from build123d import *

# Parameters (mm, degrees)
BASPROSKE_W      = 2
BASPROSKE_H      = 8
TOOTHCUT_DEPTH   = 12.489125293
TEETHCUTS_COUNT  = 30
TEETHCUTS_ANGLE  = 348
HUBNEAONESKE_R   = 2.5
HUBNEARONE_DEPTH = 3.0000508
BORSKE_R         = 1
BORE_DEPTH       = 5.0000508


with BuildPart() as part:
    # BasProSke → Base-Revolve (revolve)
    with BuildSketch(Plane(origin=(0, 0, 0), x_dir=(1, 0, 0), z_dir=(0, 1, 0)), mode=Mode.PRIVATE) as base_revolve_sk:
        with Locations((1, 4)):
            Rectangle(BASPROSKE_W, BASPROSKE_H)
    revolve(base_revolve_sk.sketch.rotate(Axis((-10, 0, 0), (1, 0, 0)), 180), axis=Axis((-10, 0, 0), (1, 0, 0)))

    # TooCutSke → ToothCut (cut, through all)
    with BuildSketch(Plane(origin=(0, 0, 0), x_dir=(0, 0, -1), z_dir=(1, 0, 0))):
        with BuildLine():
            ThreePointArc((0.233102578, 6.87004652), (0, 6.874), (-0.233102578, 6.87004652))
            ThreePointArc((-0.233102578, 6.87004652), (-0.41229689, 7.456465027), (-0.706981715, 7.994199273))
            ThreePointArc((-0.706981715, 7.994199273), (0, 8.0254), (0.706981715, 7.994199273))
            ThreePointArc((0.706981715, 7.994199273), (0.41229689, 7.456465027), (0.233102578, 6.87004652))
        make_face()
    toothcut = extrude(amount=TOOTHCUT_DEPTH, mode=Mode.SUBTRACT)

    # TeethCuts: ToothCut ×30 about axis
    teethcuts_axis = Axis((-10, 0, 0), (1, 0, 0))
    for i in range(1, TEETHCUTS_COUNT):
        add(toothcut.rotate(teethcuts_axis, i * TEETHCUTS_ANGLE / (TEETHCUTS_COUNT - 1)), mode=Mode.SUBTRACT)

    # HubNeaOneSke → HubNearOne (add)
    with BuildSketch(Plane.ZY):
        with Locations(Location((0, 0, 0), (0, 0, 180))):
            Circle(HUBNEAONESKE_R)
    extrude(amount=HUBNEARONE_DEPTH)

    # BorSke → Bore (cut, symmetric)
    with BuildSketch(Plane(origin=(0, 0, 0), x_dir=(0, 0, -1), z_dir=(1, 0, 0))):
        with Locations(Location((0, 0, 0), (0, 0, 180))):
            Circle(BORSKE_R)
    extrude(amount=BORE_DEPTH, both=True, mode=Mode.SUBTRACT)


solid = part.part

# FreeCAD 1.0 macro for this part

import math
import FreeCAD as App
import Part
import Sketcher


def add_polygon(sketch, points):
    """Adds a closed chain of lines whose ends are joined by coincident constraints."""
    first, n = sketch.GeometryCount, len(points)
    for a, b in zip(points, points[1:] + points[:1]):
        sketch.addGeometry(Part.LineSegment(App.Vector(*a, 0), App.Vector(*b, 0)), False)
    for i in range(n):
        sketch.addConstraint(Sketcher.Constraint("Coincident", first + i, 2, first + (i + 1) % n, 1))

doc = App.newDocument("Part")
params = doc.addObject("Spreadsheet::Sheet", "Params")
for row, (alias, value) in enumerate([
    ("sketch1_width", "2 mm"),
    ("sketch1_height", "8 mm"),
    ("revolution_angle", "360 deg"),
    ("sketch2_radius", "3 mm"),
    ("sketch3_diameter", "5 mm"),
    ("pad1_length", "3.000051 mm"),
    ("sketch4_diameter", "2 mm"),
    ("pocket2_length", "10.000102 mm"),
], start=1):
    params.set(f"A{row}", alias)
    params.set(f"B{row}", "=" + value)
    params.setAlias(f"B{row}", alias)

body = doc.addObject("PartDesign::Body", "Body")

# Sketch on XZ plane
sketch1 = body.newObject("Sketcher::SketchObject", "Sketch")
sketch1.AttachmentSupport = (doc.getObject("XZ_Plane"), [""])
sketch1.MapMode = "FlatFace"
add_polygon(sketch1, [(0, -8), (0, 0), (2, 0), (2, -8)])  # lines 0-3
sketch1.addConstraint(Sketcher.Constraint("Vertical", 0))
sketch1.addConstraint(Sketcher.Constraint("Horizontal", 1))
sketch1.addConstraint(Sketcher.Constraint("Vertical", 2))
sketch1.addConstraint(Sketcher.Constraint("Horizontal", 3))
sketch1.addConstraint(Sketcher.Constraint("Coincident", 0, 2, -1, 1))
sketch1.addConstraint(Sketcher.Constraint("DistanceX", 1, 1, 1, 2, 2.0))
sketch1.addConstraint(Sketcher.Constraint("DistanceY", 0, 1, 0, 2, 8.0))
sketch1.setExpression("Constraints[9]", "Params.sketch1_width")
sketch1.setExpression("Constraints[10]", "Params.sketch1_height")
revolution = body.newObject("PartDesign::Revolution", "Revolution")
revolution.Profile = sketch1
revolution.ReferenceAxis = (sketch1, ["H_Axis"])
revolution.setExpression("Angle", "Params.revolution_angle")

# Sketch on YZ plane
sketch2 = body.newObject("Sketcher::SketchObject", "Sketch001")
sketch2.AttachmentSupport = (doc.getObject("YZ_Plane"), [""])
sketch2.MapMode = "FlatFace"
sketch2.addGeometry(Part.ArcOfCircle(Part.Circle(App.Vector(0, 0, 0), App.Vector(0, 0, 1), 6.87), math.radians(-1.94), math.radians(1.94)), False)
sketch2.addGeometry(Part.ArcOfCircle(Part.Circle(App.Vector(6.29, -3.18, 0), App.Vector(0, 0, 1), 3), math.radians(55), math.radians(79)), False)
sketch2.addGeometry(Part.ArcOfCircle(Part.Circle(App.Vector(0, 0, 0), App.Vector(0, 0, 1), 8.03), math.radians(-5.05), math.radians(5.05)), False)
sketch2.addGeometry(Part.ArcOfCircle(Part.Circle(App.Vector(6.29, 3.18, 0), App.Vector(0, 0, 1), 3), math.radians(-79), math.radians(-55)), False)
sketch2.addConstraint(Sketcher.Constraint("Coincident", 0, 1, 1, 2))
sketch2.addConstraint(Sketcher.Constraint("Coincident", 1, 1, 2, 1))
sketch2.addConstraint(Sketcher.Constraint("Coincident", 2, 2, 3, 2))
sketch2.addConstraint(Sketcher.Constraint("Coincident", 3, 1, 0, 2))
sketch2.addConstraint(Sketcher.Constraint("Coincident", 0, 3, -1, 1))
sketch2.addConstraint(Sketcher.Constraint("Coincident", 2, 3, -1, 1))
sketch2.addConstraint(Sketcher.Constraint("Equal", 1, 3))
sketch2.addConstraint(Sketcher.Constraint("Symmetric", 1, 3, 3, 3, -1))
sketch2.addConstraint(Sketcher.Constraint("Radius", 1, 3.0))
sketch2.addConstraint(Sketcher.Constraint("Radius", 0, 6.874))
sketch2.addConstraint(Sketcher.Constraint("Radius", 2, 8.0254))
sketch2.addConstraint(Sketcher.Constraint("DistanceX", -1, 1, 1, 1, 7.994199))
sketch2.addConstraint(Sketcher.Constraint("DistanceY", 1, 1, 3, 3, 3.883699))
sketch2.setExpression("Constraints[8]", "Params.sketch2_radius")
pocket1 = body.newObject("PartDesign::Pocket", "Pocket")
pocket1.Profile = sketch2
pocket1.Type = "ThroughAll"
pocket1.Reversed = True
doc.recompute()

polarpattern = body.newObject("PartDesign::PolarPattern", "PolarPattern")
polarpattern.Originals = [pocket1]
polarpattern.Axis = (doc.getObject("X_Axis"), [""])
polarpattern.Angle = 360
polarpattern.Occurrences = 30
body.Tip = polarpattern

# Sketch on YZ plane
sketch3 = body.newObject("Sketcher::SketchObject", "Sketch002")
sketch3.AttachmentSupport = (doc.getObject("YZ_Plane"), [""])
sketch3.MapMode = "FlatFace"
sketch3.addGeometry(Part.Circle(App.Vector(0, 0, 0), App.Vector(0, 0, 1), 2.5), False)
sketch3.addConstraint(Sketcher.Constraint("Coincident", 0, 3, -1, 1))
sketch3.addConstraint(Sketcher.Constraint("Diameter", 0, 5.0))
sketch3.setExpression("Constraints[1]", "Params.sketch3_diameter")
pad1 = body.newObject("PartDesign::Pad", "Pad")
pad1.Profile = sketch3
pad1.setExpression("Length", "Params.pad1_length")
pad1.Reversed = True

# Sketch on YZ plane
sketch4 = body.newObject("Sketcher::SketchObject", "Sketch003")
sketch4.AttachmentSupport = (doc.getObject("YZ_Plane"), [""])
sketch4.MapMode = "FlatFace"
sketch4.addGeometry(Part.Circle(App.Vector(0, 0, 0), App.Vector(0, 0, 1), 1), False)
sketch4.addConstraint(Sketcher.Constraint("Coincident", 0, 3, -1, 1))
sketch4.addConstraint(Sketcher.Constraint("Diameter", 0, 2.0))
sketch4.setExpression("Constraints[1]", "Params.sketch4_diameter")
pocket2 = body.newObject("PartDesign::Pocket", "Pocket001")
pocket2.Profile = sketch4
pocket2.setExpression("Length", "Params.pocket2_length")
pocket2.Midplane = True

doc.recompute()
